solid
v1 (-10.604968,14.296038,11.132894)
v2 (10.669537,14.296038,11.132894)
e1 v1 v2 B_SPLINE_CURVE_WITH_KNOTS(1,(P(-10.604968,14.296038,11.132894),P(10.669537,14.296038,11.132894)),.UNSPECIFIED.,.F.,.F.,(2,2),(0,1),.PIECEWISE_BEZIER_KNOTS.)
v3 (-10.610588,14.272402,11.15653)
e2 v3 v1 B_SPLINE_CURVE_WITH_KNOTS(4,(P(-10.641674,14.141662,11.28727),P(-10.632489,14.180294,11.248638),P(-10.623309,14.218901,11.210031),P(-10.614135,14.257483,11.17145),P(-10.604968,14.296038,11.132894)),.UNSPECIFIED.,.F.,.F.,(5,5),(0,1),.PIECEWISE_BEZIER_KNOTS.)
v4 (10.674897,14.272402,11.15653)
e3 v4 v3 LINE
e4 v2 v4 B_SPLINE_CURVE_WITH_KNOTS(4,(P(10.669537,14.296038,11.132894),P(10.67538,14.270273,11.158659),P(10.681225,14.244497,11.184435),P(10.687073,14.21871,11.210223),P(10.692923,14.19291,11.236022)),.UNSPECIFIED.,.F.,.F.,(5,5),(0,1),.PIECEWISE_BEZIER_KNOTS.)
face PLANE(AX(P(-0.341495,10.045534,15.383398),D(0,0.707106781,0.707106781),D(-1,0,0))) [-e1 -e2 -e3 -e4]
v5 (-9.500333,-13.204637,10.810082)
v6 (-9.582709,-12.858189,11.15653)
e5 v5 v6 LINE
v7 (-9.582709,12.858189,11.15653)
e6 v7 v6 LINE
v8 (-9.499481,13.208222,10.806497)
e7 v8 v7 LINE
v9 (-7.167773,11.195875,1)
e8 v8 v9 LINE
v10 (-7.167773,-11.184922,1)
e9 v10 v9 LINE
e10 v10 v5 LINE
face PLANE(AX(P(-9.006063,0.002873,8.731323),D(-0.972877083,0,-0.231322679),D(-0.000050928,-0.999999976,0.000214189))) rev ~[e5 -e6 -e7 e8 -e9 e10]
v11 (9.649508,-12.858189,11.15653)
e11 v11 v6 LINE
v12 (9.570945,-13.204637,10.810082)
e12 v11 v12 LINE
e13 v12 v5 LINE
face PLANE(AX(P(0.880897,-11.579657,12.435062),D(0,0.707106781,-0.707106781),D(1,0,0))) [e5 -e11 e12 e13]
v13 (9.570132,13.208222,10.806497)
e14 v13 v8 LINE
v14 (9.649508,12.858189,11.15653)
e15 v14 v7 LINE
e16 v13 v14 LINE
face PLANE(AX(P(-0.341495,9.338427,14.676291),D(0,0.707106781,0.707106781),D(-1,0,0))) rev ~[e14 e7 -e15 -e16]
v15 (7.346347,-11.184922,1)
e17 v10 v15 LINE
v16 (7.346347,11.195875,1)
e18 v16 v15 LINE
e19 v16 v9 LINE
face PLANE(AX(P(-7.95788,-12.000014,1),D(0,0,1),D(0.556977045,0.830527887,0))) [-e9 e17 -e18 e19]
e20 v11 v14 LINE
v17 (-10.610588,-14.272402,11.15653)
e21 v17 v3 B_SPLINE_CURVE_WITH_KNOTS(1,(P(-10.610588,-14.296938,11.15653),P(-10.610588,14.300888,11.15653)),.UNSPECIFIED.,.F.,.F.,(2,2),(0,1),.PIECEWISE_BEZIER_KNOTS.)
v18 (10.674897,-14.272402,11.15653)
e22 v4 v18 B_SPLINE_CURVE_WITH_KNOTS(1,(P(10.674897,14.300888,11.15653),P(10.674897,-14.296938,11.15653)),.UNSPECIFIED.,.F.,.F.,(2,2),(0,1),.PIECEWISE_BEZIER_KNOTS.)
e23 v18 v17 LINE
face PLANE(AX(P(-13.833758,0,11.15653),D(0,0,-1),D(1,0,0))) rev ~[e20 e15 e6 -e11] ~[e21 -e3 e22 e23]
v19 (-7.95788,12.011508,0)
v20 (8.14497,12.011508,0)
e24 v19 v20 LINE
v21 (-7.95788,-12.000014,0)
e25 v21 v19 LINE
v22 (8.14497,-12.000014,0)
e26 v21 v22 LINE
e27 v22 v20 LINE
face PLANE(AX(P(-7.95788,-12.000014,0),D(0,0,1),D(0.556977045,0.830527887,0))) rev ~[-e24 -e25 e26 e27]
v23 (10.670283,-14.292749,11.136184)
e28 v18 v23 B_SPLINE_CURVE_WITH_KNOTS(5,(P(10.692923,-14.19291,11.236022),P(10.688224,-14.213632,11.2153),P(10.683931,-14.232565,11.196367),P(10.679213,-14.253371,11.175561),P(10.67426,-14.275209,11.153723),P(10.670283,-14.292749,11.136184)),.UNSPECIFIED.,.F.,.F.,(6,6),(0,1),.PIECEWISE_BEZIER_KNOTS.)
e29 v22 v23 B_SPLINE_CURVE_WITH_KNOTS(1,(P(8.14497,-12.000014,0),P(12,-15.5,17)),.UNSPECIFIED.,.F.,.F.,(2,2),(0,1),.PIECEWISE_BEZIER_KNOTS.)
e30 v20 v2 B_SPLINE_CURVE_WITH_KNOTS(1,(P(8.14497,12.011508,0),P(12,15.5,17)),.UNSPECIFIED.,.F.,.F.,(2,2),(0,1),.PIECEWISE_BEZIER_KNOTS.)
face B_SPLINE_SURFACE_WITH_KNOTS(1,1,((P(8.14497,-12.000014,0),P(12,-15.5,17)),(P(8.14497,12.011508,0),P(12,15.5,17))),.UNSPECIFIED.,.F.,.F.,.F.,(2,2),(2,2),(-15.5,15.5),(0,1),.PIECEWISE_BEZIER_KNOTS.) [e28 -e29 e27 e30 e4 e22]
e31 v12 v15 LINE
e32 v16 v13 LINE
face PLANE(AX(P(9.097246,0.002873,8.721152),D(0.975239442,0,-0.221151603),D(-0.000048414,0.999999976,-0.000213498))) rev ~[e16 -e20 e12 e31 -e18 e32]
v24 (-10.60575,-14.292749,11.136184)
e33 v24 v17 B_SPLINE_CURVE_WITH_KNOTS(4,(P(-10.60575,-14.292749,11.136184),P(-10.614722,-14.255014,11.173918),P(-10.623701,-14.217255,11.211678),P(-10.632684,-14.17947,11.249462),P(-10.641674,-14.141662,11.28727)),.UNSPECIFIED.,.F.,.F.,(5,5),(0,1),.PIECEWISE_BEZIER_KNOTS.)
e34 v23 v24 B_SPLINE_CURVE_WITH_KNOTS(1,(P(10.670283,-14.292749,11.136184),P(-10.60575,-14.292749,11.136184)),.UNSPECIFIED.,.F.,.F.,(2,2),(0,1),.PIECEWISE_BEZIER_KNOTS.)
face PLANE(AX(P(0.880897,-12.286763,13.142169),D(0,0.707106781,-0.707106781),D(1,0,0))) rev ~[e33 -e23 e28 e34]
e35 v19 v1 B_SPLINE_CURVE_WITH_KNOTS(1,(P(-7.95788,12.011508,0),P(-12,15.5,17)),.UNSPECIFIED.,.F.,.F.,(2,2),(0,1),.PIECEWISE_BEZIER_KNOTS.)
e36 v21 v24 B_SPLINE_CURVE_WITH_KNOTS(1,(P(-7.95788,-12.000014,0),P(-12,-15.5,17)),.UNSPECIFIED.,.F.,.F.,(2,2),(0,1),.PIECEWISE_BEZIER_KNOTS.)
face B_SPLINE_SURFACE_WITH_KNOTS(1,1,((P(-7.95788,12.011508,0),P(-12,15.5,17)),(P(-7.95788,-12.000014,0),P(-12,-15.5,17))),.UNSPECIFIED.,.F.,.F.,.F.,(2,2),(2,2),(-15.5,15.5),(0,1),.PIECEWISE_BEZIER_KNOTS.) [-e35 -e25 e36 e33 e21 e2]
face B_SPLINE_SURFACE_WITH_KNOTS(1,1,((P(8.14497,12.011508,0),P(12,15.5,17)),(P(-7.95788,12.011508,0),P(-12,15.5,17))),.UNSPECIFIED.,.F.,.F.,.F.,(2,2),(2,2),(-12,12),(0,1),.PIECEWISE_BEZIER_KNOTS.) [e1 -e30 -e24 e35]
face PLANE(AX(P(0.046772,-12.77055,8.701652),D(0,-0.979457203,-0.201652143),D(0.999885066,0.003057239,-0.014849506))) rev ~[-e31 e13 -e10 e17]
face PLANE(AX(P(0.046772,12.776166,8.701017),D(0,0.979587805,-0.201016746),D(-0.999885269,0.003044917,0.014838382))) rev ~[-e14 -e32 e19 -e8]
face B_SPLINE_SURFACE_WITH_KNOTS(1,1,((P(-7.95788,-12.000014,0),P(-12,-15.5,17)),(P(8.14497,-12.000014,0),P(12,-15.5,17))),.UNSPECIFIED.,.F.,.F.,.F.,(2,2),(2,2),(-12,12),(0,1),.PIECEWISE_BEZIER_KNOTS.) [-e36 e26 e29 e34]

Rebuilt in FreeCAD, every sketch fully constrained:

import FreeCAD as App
import Part
import Sketcher
from FreeCAD import Vector
Q = App.Units.Quantity


def faces_at(feature, points):
    """Names of the faces that lie closest to the given points."""
    faces = feature.Shape.Faces
    near = lambda p: min(range(len(faces)), key=lambda i: faces[i].distToShape(Part.Vertex(*p))[0])
    return sorted({f"Face{near(p) + 1}" for p in points})

doc = App.newDocument("Part")
body = doc.addObject("PartDesign::Body", "Body")

sketch1 = body.newObject("Sketcher::SketchObject", "Sketch")
sketch1.AttachmentSupport = (doc.getObject("XY_Plane"), [""])
sketch1.MapMode = "FlatFace"
sketch1.addGeometry(Part.LineSegment(Vector(-8, 12, 0), Vector(-8, -12, 0)), False)
sketch1.addGeometry(Part.LineSegment(Vector(-8, -12, 0), Vector(8, -12, 0)), False)
sketch1.addGeometry(Part.LineSegment(Vector(8, -12, 0), Vector(8, 12, 0)), False)
sketch1.addGeometry(Part.LineSegment(Vector(8, 12, 0), Vector(-8, 12, 0)), False)
sketch1.addConstraint(Sketcher.Constraint("Coincident", 0, 2, 1, 1))
sketch1.addConstraint(Sketcher.Constraint("Coincident", 1, 2, 2, 1))
sketch1.addConstraint(Sketcher.Constraint("Coincident", 2, 2, 3, 1))
sketch1.addConstraint(Sketcher.Constraint("Coincident", 3, 2, 0, 1))
sketch1.addConstraint(Sketcher.Constraint("Vertical", 0))
sketch1.addConstraint(Sketcher.Constraint("Horizontal", 1))
sketch1.addConstraint(Sketcher.Constraint("Vertical", 2))
sketch1.addConstraint(Sketcher.Constraint("Horizontal", 3))
sketch1.addConstraint(Sketcher.Constraint("DistanceX", 1, 1, 1, 2, Q("16.10285 mm")))
sketch1.addConstraint(Sketcher.Constraint("DistanceY", 0, 2, 0, 1, Q("24.011522 mm")))
sketch1.addConstraint(Sketcher.Constraint("DistanceX", 0, 2, -1, 1, Q("7.95788 mm")))
sketch1.addConstraint(Sketcher.Constraint("DistanceY", 0, 2, -1, 1, Q("12.000014 mm")))

sketch2 = body.newObject("Sketcher::SketchObject", "Sketch001")
sketch2.AttachmentSupport = (doc.getObject("XY_Plane"), [""])
sketch2.MapMode = "FlatFace"
sketch2.AttachmentOffset = App.Placement(Vector(0, 0, 17), App.Rotation())
sketch2.addGeometry(Part.LineSegment(Vector(-12, 16, 0), Vector(-12, -16, 0)), False)
sketch2.addGeometry(Part.LineSegment(Vector(-12, -16, 0), Vector(12, -16, 0)), False)
sketch2.addGeometry(Part.LineSegment(Vector(12, -16, 0), Vector(12, 16, 0)), False)
sketch2.addGeometry(Part.LineSegment(Vector(12, 16, 0), Vector(-12, 16, 0)), False)
sketch2.addConstraint(Sketcher.Constraint("Coincident", 0, 2, 1, 1))
sketch2.addConstraint(Sketcher.Constraint("Coincident", 1, 2, 2, 1))
sketch2.addConstraint(Sketcher.Constraint("Coincident", 2, 2, 3, 1))
sketch2.addConstraint(Sketcher.Constraint("Coincident", 3, 2, 0, 1))
sketch2.addConstraint(Sketcher.Constraint("Vertical", 0))
sketch2.addConstraint(Sketcher.Constraint("Horizontal", 1))
sketch2.addConstraint(Sketcher.Constraint("Vertical", 2))
sketch2.addConstraint(Sketcher.Constraint("Horizontal", 3))
sketch2.addConstraint(Sketcher.Constraint("Symmetric", 0, 2, 2, 2, -1, 1))
sketch2.addConstraint(Sketcher.Constraint("DistanceX", 1, 1, 1, 2, Q("24 mm")))
sketch2.addConstraint(Sketcher.Constraint("DistanceY", 0, 2, 0, 1, Q("31 mm")))

additiveloft = body.newObject("PartDesign::AdditiveLoft", "AdditiveLoft")
additiveloft.Profile = sketch1
additiveloft.Sections = [sketch2]

sketch3 = body.newObject("Sketcher::SketchObject", "Sketch002")
sketch3.Placement = App.Placement(Vector(-14.5, 0, 14.5), App.Rotation(Vector(0.707106781, 0, 0.707106781), Vector(0, -0.999999999, 0), Vector(0.707106781, 0, -0.707106781), "ZXY"))
sketch3.addGeometry(Part.LineSegment(Vector(-5, 17, 0), Vector(-5, -18, 0)), False)
sketch3.addGeometry(Part.LineSegment(Vector(-5, -18, 0), Vector(9, -18, 0)), False)
sketch3.addGeometry(Part.LineSegment(Vector(9, -18, 0), Vector(9, 17, 0)), False)
sketch3.addGeometry(Part.LineSegment(Vector(9, 17, 0), Vector(-5, 17, 0)), False)
sketch3.addConstraint(Sketcher.Constraint("Coincident", 0, 2, 1, 1))
sketch3.addConstraint(Sketcher.Constraint("Coincident", 1, 2, 2, 1))
sketch3.addConstraint(Sketcher.Constraint("Coincident", 2, 2, 3, 1))
sketch3.addConstraint(Sketcher.Constraint("Coincident", 3, 2, 0, 1))
sketch3.addConstraint(Sketcher.Constraint("Vertical", 0))
sketch3.addConstraint(Sketcher.Constraint("Horizontal", 1))
sketch3.addConstraint(Sketcher.Constraint("Vertical", 2))
sketch3.addConstraint(Sketcher.Constraint("Horizontal", 3))
sketch3.addConstraint(Sketcher.Constraint("DistanceY", 0, 2, 0, 1, Q("35.083201 mm")))
sketch3.addConstraint(Sketcher.Constraint("DistanceX", 1, 1, 1, 2, Q("14.026316 mm")))
sketch3.addConstraint(Sketcher.Constraint("DistanceX", 0, 2, -1, 1, Q("4.886181 mm")))
sketch3.addConstraint(Sketcher.Constraint("DistanceY", 0, 2, -1, 1, Q("17.807176 mm")))
pocket1 = body.newObject("PartDesign::Pocket", "Pocket")
pocket1.Profile = sketch3
pocket1.Length = 5
pocket1.Reversed = True

sketch4 = body.newObject("Sketcher::SketchObject", "Sketch003")
sketch4.Placement = App.Placement(Vector(14.5, 0, 14.5), App.Rotation(Vector(0, 1, 0), Vector(-0.707106781, 0, 0.707106781), Vector(0.707106781, 0, 0.707106781), "ZXY"))
sketch4.addGeometry(Part.LineSegment(Vector(-18, 12, 0), Vector(-18, -4, 0)), False)
sketch4.addGeometry(Part.LineSegment(Vector(-18, -4, 0), Vector(18, -4, 0)), False)
sketch4.addGeometry(Part.LineSegment(Vector(18, -4, 0), Vector(18, 12, 0)), False)
sketch4.addGeometry(Part.LineSegment(Vector(18, 12, 0), Vector(-18, 12, 0)), False)
sketch4.addConstraint(Sketcher.Constraint("Coincident", 0, 2, 1, 1))
sketch4.addConstraint(Sketcher.Constraint("Coincident", 1, 2, 2, 1))
sketch4.addConstraint(Sketcher.Constraint("Coincident", 2, 2, 3, 1))
sketch4.addConstraint(Sketcher.Constraint("Coincident", 3, 2, 0, 1))
sketch4.addConstraint(Sketcher.Constraint("Vertical", 0))
sketch4.addConstraint(Sketcher.Constraint("Horizontal", 1))
sketch4.addConstraint(Sketcher.Constraint("Vertical", 2))
sketch4.addConstraint(Sketcher.Constraint("Horizontal", 3))
sketch4.addConstraint(Sketcher.Constraint("DistanceX", 1, 1, 1, 2, Q("36.708498 mm")))
sketch4.addConstraint(Sketcher.Constraint("DistanceY", 0, 2, 0, 1, Q("15.672351 mm")))
sketch4.addConstraint(Sketcher.Constraint("DistanceX", 0, 2, -1, 1, Q("18.41085 mm")))
sketch4.addConstraint(Sketcher.Constraint("DistanceY", 0, 2, -1, 1, Q("3.715363 mm")))
pocket2 = body.newObject("PartDesign::Pocket", "Pocket001")
pocket2.Profile = sketch4
pocket2.Length = 5

sketch5 = body.newObject("Sketcher::SketchObject", "Sketch004")
sketch5.Placement = App.Placement(Vector(0, 16.25, 16.25), App.Rotation(Vector(-1, 0, 0), Vector(0, -0.707106781, 0.707106781), Vector(0, 0.707106781, 0.707106781), "ZXY"))
sketch5.addGeometry(Part.LineSegment(Vector(-14, 13, 0), Vector(-14, -6, 0)), False)
sketch5.addGeometry(Part.LineSegment(Vector(-14, -6, 0), Vector(15, -6, 0)), False)
sketch5.addGeometry(Part.LineSegment(Vector(15, -6, 0), Vector(15, 13, 0)), False)
sketch5.addGeometry(Part.LineSegment(Vector(15, 13, 0), Vector(-14, 13, 0)), False)
sketch5.addConstraint(Sketcher.Constraint("Coincident", 0, 2, 1, 1))
sketch5.addConstraint(Sketcher.Constraint("Coincident", 1, 2, 2, 1))
sketch5.addConstraint(Sketcher.Constraint("Coincident", 2, 2, 3, 1))
sketch5.addConstraint(Sketcher.Constraint("Coincident", 3, 2, 0, 1))
sketch5.addConstraint(Sketcher.Constraint("Vertical", 0))
sketch5.addConstraint(Sketcher.Constraint("Horizontal", 1))
sketch5.addConstraint(Sketcher.Constraint("Vertical", 2))
sketch5.addConstraint(Sketcher.Constraint("Horizontal", 3))
sketch5.addConstraint(Sketcher.Constraint("DistanceY", 0, 2, -1, 1, Q("5.645799 mm")))
sketch5.addConstraint(Sketcher.Constraint("DistanceX", 1, 1, 1, 2, Q("29.310524 mm")))
sketch5.addConstraint(Sketcher.Constraint("DistanceY", 0, 2, 0, 1, Q("18.840477 mm")))
sketch5.addConstraint(Sketcher.Constraint("DistanceX", 0, 2, -1, 1, Q("14.313767 mm")))
pocket3 = body.newObject("PartDesign::Pocket", "Pocket002")
pocket3.Profile = sketch5
pocket3.Length = 5

sketch6 = body.newObject("Sketcher::SketchObject", "Sketch005")
sketch6.Placement = App.Placement(Vector(0, -16.25, 16.25), App.Rotation(Vector(1, 0, 0), Vector(0, -0.707106781, -0.707106781), Vector(0, 0.707106781, -0.707106781), "ZXY"))
sketch6.addGeometry(Part.LineSegment(Vector(-15, 6, 0), Vector(-15, -7, 0)), False)
sketch6.addGeometry(Part.LineSegment(Vector(-15, -7, 0), Vector(17, -7, 0)), False)
sketch6.addGeometry(Part.LineSegment(Vector(17, -7, 0), Vector(17, 6, 0)), False)
sketch6.addGeometry(Part.LineSegment(Vector(17, 6, 0), Vector(-15, 6, 0)), False)
sketch6.addConstraint(Sketcher.Constraint("Coincident", 0, 2, 1, 1))
sketch6.addConstraint(Sketcher.Constraint("Coincident", 1, 2, 2, 1))
sketch6.addConstraint(Sketcher.Constraint("Coincident", 2, 2, 3, 1))
sketch6.addConstraint(Sketcher.Constraint("Coincident", 3, 2, 0, 1))
sketch6.addConstraint(Sketcher.Constraint("Vertical", 0))
sketch6.addConstraint(Sketcher.Constraint("Horizontal", 1))
sketch6.addConstraint(Sketcher.Constraint("Vertical", 2))
sketch6.addConstraint(Sketcher.Constraint("Horizontal", 3))
sketch6.addConstraint(Sketcher.Constraint("DistanceX", 1, 1, 1, 2, Q("31.522602 mm")))
sketch6.addConstraint(Sketcher.Constraint("DistanceY", 0, 2, 0, 1, Q("13.280653 mm")))
sketch6.addConstraint(Sketcher.Constraint("DistanceY", 0, 2, -1, 1, Q("7.24519 mm")))
sketch6.addConstraint(Sketcher.Constraint("DistanceX", 0, 2, -1, 1, Q("14.880404 mm")))
pocket4 = body.newObject("PartDesign::Pocket", "Pocket003")
pocket4.Profile = sketch6
pocket4.Length = 5
pocket4.Reversed = True

sketch7 = body.newObject("Sketcher::SketchObject", "Sketch006")
sketch7.AttachmentSupport = (doc.getObject("XZ_Plane"), [""])
sketch7.MapMode = "FlatFace"
sketch7.addGeometry(Part.LineSegment(Vector(-14, 19, 0), Vector(-14, 11, 0)), False)
sketch7.addGeometry(Part.LineSegment(Vector(-14, 11, 0), Vector(11, 11, 0)), False)
sketch7.addGeometry(Part.LineSegment(Vector(11, 11, 0), Vector(11, 19, 0)), False)
sketch7.addGeometry(Part.LineSegment(Vector(11, 19, 0), Vector(-14, 19, 0)), False)
sketch7.addConstraint(Sketcher.Constraint("Coincident", 0, 2, 1, 1))
sketch7.addConstraint(Sketcher.Constraint("Coincident", 1, 2, 2, 1))
sketch7.addConstraint(Sketcher.Constraint("Coincident", 2, 2, 3, 1))
sketch7.addConstraint(Sketcher.Constraint("Coincident", 3, 2, 0, 1))
sketch7.addConstraint(Sketcher.Constraint("Vertical", 0))
sketch7.addConstraint(Sketcher.Constraint("Horizontal", 1))
sketch7.addConstraint(Sketcher.Constraint("Vertical", 2))
sketch7.addConstraint(Sketcher.Constraint("Horizontal", 3))
sketch7.addConstraint(Sketcher.Constraint("DistanceX", 1, 1, 1, 2, Q("24.90574 mm")))
sketch7.addConstraint(Sketcher.Constraint("DistanceY", 0, 2, 0, 1, Q("7.846807 mm")))
sketch7.addConstraint(Sketcher.Constraint("DistanceX", 0, 2, -1, 1, Q("13.833758 mm")))
sketch7.addConstraint(Sketcher.Constraint("DistanceY", -1, 1, 0, 2, Q("11.15653 mm")))
pocket5 = body.newObject("PartDesign::Pocket", "Pocket004")
pocket5.Profile = sketch7
pocket5.Length = 50.8
pocket5.Midplane = True
doc.recompute()

thickness = body.newObject("PartDesign::Thickness", "Thickness")
thickness.Base = (pocket5, faces_at(pocket5, [(0.032, 0, 11.157)]))
thickness.Value = 1
thickness.Reversed = True
thickness.Join = "Arc"

doc.recompute()
